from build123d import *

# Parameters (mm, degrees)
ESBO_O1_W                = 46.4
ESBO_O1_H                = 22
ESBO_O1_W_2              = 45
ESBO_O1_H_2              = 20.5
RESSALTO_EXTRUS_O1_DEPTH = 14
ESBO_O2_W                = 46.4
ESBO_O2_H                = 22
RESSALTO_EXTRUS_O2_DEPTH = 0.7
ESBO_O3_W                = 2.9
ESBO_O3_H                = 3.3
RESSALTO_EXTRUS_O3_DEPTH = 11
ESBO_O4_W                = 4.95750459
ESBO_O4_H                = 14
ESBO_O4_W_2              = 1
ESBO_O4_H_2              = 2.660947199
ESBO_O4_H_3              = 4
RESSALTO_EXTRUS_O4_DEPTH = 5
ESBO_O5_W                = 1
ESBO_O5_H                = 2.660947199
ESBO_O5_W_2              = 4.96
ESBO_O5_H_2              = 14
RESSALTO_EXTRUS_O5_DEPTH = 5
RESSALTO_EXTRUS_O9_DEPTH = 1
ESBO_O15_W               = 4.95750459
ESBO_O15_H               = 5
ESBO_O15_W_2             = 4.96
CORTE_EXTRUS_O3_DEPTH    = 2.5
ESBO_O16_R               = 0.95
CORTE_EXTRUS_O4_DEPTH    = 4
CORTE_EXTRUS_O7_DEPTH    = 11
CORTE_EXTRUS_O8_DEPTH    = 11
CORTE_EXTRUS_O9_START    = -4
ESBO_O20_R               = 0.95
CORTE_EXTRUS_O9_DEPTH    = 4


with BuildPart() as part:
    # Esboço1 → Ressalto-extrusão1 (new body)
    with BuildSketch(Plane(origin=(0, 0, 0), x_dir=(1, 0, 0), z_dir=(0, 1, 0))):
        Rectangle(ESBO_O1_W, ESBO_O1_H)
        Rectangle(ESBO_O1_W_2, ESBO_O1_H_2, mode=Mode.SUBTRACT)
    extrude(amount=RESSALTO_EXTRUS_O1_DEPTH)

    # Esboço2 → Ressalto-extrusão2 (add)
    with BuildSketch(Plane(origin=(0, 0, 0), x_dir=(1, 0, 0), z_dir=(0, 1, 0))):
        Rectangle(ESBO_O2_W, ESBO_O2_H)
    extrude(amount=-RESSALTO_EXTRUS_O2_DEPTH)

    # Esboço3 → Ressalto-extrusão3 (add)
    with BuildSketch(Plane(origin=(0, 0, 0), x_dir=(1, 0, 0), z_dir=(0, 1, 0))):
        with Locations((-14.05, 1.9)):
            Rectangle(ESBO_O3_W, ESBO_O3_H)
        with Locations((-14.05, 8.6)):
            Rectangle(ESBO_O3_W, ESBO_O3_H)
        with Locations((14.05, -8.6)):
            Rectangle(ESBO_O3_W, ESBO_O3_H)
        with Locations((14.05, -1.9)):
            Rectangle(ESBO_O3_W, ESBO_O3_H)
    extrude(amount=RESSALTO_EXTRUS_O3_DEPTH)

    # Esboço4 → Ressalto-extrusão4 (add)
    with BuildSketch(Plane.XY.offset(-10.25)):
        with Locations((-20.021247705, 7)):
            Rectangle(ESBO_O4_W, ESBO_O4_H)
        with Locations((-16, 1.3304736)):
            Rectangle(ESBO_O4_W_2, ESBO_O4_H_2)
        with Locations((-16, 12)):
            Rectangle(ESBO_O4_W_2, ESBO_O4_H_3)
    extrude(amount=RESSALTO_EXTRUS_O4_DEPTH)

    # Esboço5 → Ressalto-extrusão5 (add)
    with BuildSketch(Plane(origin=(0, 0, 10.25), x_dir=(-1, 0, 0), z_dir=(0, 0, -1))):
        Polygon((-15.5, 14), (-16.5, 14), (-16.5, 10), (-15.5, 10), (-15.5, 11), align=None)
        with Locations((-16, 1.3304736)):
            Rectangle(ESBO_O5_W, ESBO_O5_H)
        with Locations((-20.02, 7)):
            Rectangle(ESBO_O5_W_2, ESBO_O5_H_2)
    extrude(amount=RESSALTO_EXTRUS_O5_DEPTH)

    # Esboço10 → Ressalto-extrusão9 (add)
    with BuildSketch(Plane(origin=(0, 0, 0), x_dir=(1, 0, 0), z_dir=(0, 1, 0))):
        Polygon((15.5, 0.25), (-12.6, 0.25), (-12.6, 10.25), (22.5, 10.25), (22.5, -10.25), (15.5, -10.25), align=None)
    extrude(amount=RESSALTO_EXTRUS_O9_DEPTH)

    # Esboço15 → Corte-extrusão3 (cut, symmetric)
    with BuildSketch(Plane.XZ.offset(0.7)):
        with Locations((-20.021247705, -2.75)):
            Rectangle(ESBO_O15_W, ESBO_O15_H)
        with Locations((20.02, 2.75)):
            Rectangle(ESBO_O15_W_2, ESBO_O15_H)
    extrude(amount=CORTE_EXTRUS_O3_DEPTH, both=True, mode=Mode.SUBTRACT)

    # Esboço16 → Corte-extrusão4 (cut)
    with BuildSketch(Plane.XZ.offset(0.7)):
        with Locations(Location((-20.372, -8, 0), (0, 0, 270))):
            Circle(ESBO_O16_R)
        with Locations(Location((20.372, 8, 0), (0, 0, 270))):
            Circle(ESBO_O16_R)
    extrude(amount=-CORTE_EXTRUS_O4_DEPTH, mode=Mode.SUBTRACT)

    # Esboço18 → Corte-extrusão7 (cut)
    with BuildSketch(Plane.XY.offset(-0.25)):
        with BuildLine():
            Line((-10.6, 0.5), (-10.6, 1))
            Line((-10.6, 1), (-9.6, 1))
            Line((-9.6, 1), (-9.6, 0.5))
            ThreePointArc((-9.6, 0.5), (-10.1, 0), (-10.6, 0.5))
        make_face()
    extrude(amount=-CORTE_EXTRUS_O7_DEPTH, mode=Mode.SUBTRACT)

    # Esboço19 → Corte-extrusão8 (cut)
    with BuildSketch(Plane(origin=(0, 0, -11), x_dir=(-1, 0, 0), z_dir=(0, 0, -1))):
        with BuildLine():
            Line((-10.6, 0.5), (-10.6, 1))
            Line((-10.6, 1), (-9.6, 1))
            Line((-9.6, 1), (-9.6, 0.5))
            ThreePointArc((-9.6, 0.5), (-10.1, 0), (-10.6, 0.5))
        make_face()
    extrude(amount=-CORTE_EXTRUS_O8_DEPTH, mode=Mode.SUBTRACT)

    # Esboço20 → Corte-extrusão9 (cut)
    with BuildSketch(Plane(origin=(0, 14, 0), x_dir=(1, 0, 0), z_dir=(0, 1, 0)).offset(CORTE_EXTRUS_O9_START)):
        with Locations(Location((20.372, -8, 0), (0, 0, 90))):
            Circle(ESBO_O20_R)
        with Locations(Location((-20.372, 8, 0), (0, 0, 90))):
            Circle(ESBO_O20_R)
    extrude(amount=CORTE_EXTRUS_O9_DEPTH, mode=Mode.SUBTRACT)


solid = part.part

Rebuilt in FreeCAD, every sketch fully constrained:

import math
import FreeCAD as App
import Part
import Sketcher

V = App.Vector
Q = App.Units.Quantity

doc = App.newDocument("Part")
params = doc.addObject("Spreadsheet::Sheet", "Params")
for row, (alias, value) in enumerate([
    ("sketch1_width", "45 mm"),
    ("sketch1_height", "22 mm"),
    ("sketch1_width2", "46.4 mm"),
    ("sketch1_height2", "20.5 mm"),
    ("pad1_length", "14 mm"),
    ("sketch2_height", "22 mm"),
    ("sketch2_width", "46.4 mm"),
    ("pad2_length", "0.7 mm"),
    ("sketch3_width", "2.9 mm"),
    ("sketch3_height", "3.3 mm"),
    ("pad3_length", "11 mm"),
    ("sketch4_width", "1 mm"),
    ("sketch4_height", "14 mm"),
    ("sketch4_height2", "4 mm"),
    ("pad4_length", "5 mm"),
    ("sketch5_width", "1 mm"),
    ("sketch5_height", "4 mm"),
    ("sketch5_height2", "14 mm"),
    ("sketch5_width2", "4.96 mm"),
    ("pad5_length", "5 mm"),
    ("sketch6_width", "7 mm"),
    ("sketch6_height", "10 mm"),
    ("sketch6_width2", "28.1 mm"),
    ("sketch6_height2", "10.5 mm"),
    ("pad6_length", "1 mm"),
    ("sketch7_height", "5 mm"),
    ("sketch7_width", "4.96 mm"),
    ("pocket1_length", "5 mm"),
    ("sketch8_diameter", "1.9 mm"),
    ("pocket2_length", "4 mm"),
    ("sketch9_radius", "0.5 mm"),
    ("sketch9_height", "0.5 mm"),
    ("pocket3_length", "11 mm"),
    ("sketch10_radius", "0.5 mm"),
    ("sketch10_height", "0.5 mm"),
    ("pocket4_length", "11 mm"),
    ("sketch11_diameter", "1.9 mm"),
    ("pocket5_length", "4 mm"),
], start=1):
    params.set(f"A{row}", alias)
    params.set(f"B{row}", "=" + value)
    params.setAlias(f"B{row}", alias)

body = doc.addObject("PartDesign::Body", "Body")

# Sketch on XZ plane
sketch1 = body.newObject("Sketcher::SketchObject", "Sketch")
sketch1.AttachmentSupport = (doc.getObject("XZ_Plane"), [""])
sketch1.MapMode = "FlatFace"
sketch1.addGeometry([
    Part.LineSegment(V(-23, -11, 0), V(-23, 11, 0)),  # 0
    Part.LineSegment(V(-23, 11, 0), V(23, 11, 0)),  # 1
    Part.LineSegment(V(23, 11, 0), V(23, -11, 0)),  # 2
    Part.LineSegment(V(23, -11, 0), V(-23, -11, 0)),  # 3
    Part.LineSegment(V(22, 10, 0), V(-22, 10, 0)),  # 4
    Part.LineSegment(V(-22, 10, 0), V(-22, -10, 0)),  # 5
    Part.LineSegment(V(-22, -10, 0), V(22, -10, 0)),  # 6
    Part.LineSegment(V(22, -10, 0), V(22, 10, 0)),  # 7
], False)
sketch1.addConstraint([
    Sketcher.Constraint("Coincident", 0, 2, 1, 1),
    Sketcher.Constraint("Coincident", 1, 2, 2, 1),
    Sketcher.Constraint("Coincident", 2, 2, 3, 1),
    Sketcher.Constraint("Coincident", 3, 2, 0, 1),
    Sketcher.Constraint("Coincident", 4, 2, 5, 1),
    Sketcher.Constraint("Coincident", 5, 2, 6, 1),
    Sketcher.Constraint("Coincident", 6, 2, 7, 1),
    Sketcher.Constraint("Coincident", 7, 2, 4, 1),
    Sketcher.Constraint("Vertical", 0),
    Sketcher.Constraint("Horizontal", 1),
    Sketcher.Constraint("Vertical", 2),
    Sketcher.Constraint("Horizontal", 3),
    Sketcher.Constraint("Horizontal", 4),
    Sketcher.Constraint("Vertical", 5),
    Sketcher.Constraint("Horizontal", 6),
    Sketcher.Constraint("Vertical", 7),
    Sketcher.Constraint("Symmetric", 0, 2, 2, 2, -1, 1),
    Sketcher.Constraint("Symmetric", 4, 2, 6, 2, -1, 1),
    Sketcher.Constraint("DistanceX", 4, 2, 4, 1, Q("45 mm")),
    Sketcher.Constraint("DistanceY", 0, 1, 0, 2, Q("22 mm")),
    Sketcher.Constraint("DistanceX", 1, 1, 1, 2, Q("46.4 mm")),
    Sketcher.Constraint("DistanceY", 5, 2, 5, 1, Q("20.5 mm")),
])
sketch1.setExpression("Constraints[18]", "Params.sketch1_width")
sketch1.setExpression("Constraints[19]", "Params.sketch1_height")
sketch1.setExpression("Constraints[20]", "Params.sketch1_width2")
sketch1.setExpression("Constraints[21]", "Params.sketch1_height2")
pad1 = body.newObject("PartDesign::Pad", "Pad")
pad1.Profile = sketch1
pad1.setExpression("Length", "Params.pad1_length")
pad1.Reversed = True

# Sketch on XZ plane
sketch2 = body.newObject("Sketcher::SketchObject", "Sketch001")
sketch2.AttachmentSupport = (doc.getObject("XZ_Plane"), [""])
sketch2.MapMode = "FlatFace"
sketch2.addGeometry([
    Part.LineSegment(V(-23, -11, 0), V(-23, 11, 0)),
    Part.LineSegment(V(-23, 11, 0), V(23, 11, 0)),
    Part.LineSegment(V(23, 11, 0), V(23, -11, 0)),
    Part.LineSegment(V(23, -11, 0), V(-23, -11, 0)),
], False)
sketch2.addConstraint([
    Sketcher.Constraint("Coincident", 0, 2, 1, 1),
    Sketcher.Constraint("Coincident", 1, 2, 2, 1),
    Sketcher.Constraint("Coincident", 2, 2, 3, 1),
    Sketcher.Constraint("Coincident", 3, 2, 0, 1),
    Sketcher.Constraint("Vertical", 0),
    Sketcher.Constraint("Horizontal", 1),
    Sketcher.Constraint("Vertical", 2),
    Sketcher.Constraint("Horizontal", 3),
    Sketcher.Constraint("Symmetric", 0, 2, 2, 2, -1, 1),
    Sketcher.Constraint("DistanceY", 0, 1, 0, 2, Q("22 mm")),
    Sketcher.Constraint("DistanceX", 1, 1, 1, 2, Q("46.4 mm")),
])
sketch2.setExpression("Constraints[9]", "Params.sketch2_height")
sketch2.setExpression("Constraints[10]", "Params.sketch2_width")
pad2 = body.newObject("PartDesign::Pad", "Pad001")
pad2.Profile = sketch2
pad2.setExpression("Length", "Params.pad2_length")

# Sketch on XZ plane
sketch3 = body.newObject("Sketcher::SketchObject", "Sketch002")
sketch3.AttachmentSupport = (doc.getObject("XZ_Plane"), [""])
sketch3.MapMode = "FlatFace"
sketch3.addGeometry([
    Part.LineSegment(V(-15.5, -3.5, 0), V(-15.5, -0.2, 0)),  # 0
    Part.LineSegment(V(-15.5, -0.2, 0), V(-12.6, -0.2, 0)),  # 1
    Part.LineSegment(V(-12.6, -0.2, 0), V(-12.6, -3.5, 0)),  # 2
    Part.LineSegment(V(-12.6, -3.5, 0), V(-15.5, -3.5, 0)),  # 3
    Part.LineSegment(V(-15.5, -10.2, 0), V(-15.5, -7, 0)),  # 4
    Part.LineSegment(V(-15.5, -7, 0), V(-12.6, -7, 0)),  # 5
    Part.LineSegment(V(-12.6, -7, 0), V(-12.6, -10.2, 0)),  # 6
    Part.LineSegment(V(-12.6, -10.2, 0), V(-15.5, -10.2, 0)),  # 7
    Part.LineSegment(V(12.6, 7, 0), V(12.6, 10.2, 0)),  # 8
    Part.LineSegment(V(12.6, 10.2, 0), V(15.5, 10.2, 0)),  # 9
    Part.LineSegment(V(15.5, 10.2, 0), V(15.5, 7, 0)),  # 10
    Part.LineSegment(V(15.5, 7, 0), V(12.6, 7, 0)),  # 11
    Part.LineSegment(V(12.6, 0.2, 0), V(12.6, 3.5, 0)),  # 12
    Part.LineSegment(V(12.6, 3.5, 0), V(15.5, 3.5, 0)),  # 13
    Part.LineSegment(V(15.5, 3.5, 0), V(15.5, 0.2, 0)),  # 14
    Part.LineSegment(V(15.5, 0.2, 0), V(12.6, 0.2, 0)),  # 15
], False)
sketch3.addConstraint([
    Sketcher.Constraint("Coincident", 0, 2, 1, 1),
    Sketcher.Constraint("Coincident", 1, 2, 2, 1),
    Sketcher.Constraint("Coincident", 2, 2, 3, 1),
    Sketcher.Constraint("Coincident", 3, 2, 0, 1),
    Sketcher.Constraint("Coincident", 4, 2, 5, 1),
    Sketcher.Constraint("Coincident", 5, 2, 6, 1),
    Sketcher.Constraint("Coincident", 6, 2, 7, 1),
    Sketcher.Constraint("Coincident", 7, 2, 4, 1),
    Sketcher.Constraint("Coincident", 8, 2, 9, 1),
    Sketcher.Constraint("Coincident", 9, 2, 10, 1),
    Sketcher.Constraint("Coincident", 10, 2, 11, 1),
    Sketcher.Constraint("Coincident", 11, 2, 8, 1),
    Sketcher.Constraint("Coincident", 12, 2, 13, 1),
    Sketcher.Constraint("Coincident", 13, 2, 14, 1),
    Sketcher.Constraint("Coincident", 14, 2, 15, 1),
    Sketcher.Constraint("Coincident", 15, 2, 12, 1),
    Sketcher.Constraint("Vertical", 0),
    Sketcher.Constraint("Horizontal", 1),
    Sketcher.Constraint("Vertical", 2),
    Sketcher.Constraint("Horizontal", 3),
    Sketcher.Constraint("Vertical", 4),
    Sketcher.Constraint("Horizontal", 5),
    Sketcher.Constraint("Vertical", 6),
    Sketcher.Constraint("Horizontal", 7),
    Sketcher.Constraint("Vertical", 8),
    Sketcher.Constraint("Horizontal", 9),
    Sketcher.Constraint("Vertical", 10),
    Sketcher.Constraint("Horizontal", 11),
    Sketcher.Constraint("Vertical", 12),
    Sketcher.Constraint("Horizontal", 13),
    Sketcher.Constraint("Vertical", 14),
    Sketcher.Constraint("Horizontal", 15),
    Sketcher.Constraint("Symmetric", 6, 2, 8, 2, -1, 1),
    Sketcher.Constraint("Symmetric", 4, 2, 10, 2, -1, 1),
    Sketcher.Constraint("Symmetric", 2, 2, 12, 2, -1, 1),
    Sketcher.Constraint("Symmetric", 0, 2, 14, 2, -1, 1),
    Sketcher.Constraint("Vertical", 3, 2, 4, 2),
    Sketcher.Constraint("Vertical", 2, 2, 5, 2),
    Sketcher.Constraint("Equal", 2, 4),
    Sketcher.Constraint("DistanceX", 1, 1, 1, 2, Q("2.9 mm")),
    Sketcher.Constraint("DistanceY", 0, 1, 0, 2, Q("3.3 mm")),
    Sketcher.Constraint("DistanceY", 6, 2, 1, 2, Q("10 mm")),
    Sketcher.Constraint("DistanceX", 0, 2, 9, 2, Q("31 mm")),
    Sketcher.Constraint("DistanceY", 1, 2, 8, 2, Q("10.5 mm")),
])
sketch3.setExpression("Constraints[39]", "Params.sketch3_width")
sketch3.setExpression("Constraints[40]", "Params.sketch3_height")
pad3 = body.newObject("PartDesign::Pad", "Pad002")
pad3.Profile = sketch3
pad3.setExpression("Length", "Params.pad3_length")
pad3.Reversed = True

# Sketch on XY plane
sketch4 = body.newObject("Sketcher::SketchObject", "Sketch003")
sketch4.AttachmentSupport = (doc.getObject("XY_Plane"), [""])
sketch4.MapMode = "FlatFace"
sketch4.AttachmentOffset = App.Placement(V(0, 0, -10.25), App.Rotation())
sketch4.addGeometry([
    Part.LineSegment(V(-22.5, 14, 0), V(-22.5, 0, 0)),  # 0
    Part.LineSegment(V(-22.5, 0, 0), V(-17.5, 0, 0)),  # 1
    Part.LineSegment(V(-17.5, 0, 0), V(-17.5, 14, 0)),  # 2
    Part.LineSegment(V(-17.5, 14, 0), V(-22.5, 14, 0)),  # 3
    Part.LineSegment(V(-16.5, 2.7, 0), V(-16.5, 0, 0)),  # 4
    Part.LineSegment(V(-16.5, 0, 0), V(-15.5, 0, 0)),  # 5
    Part.LineSegment(V(-15.5, 0, 0), V(-15.5, 2.7, 0)),  # 6
    Part.LineSegment(V(-15.5, 2.7, 0), V(-16.5, 2.7, 0)),  # 7
    Part.LineSegment(V(-16.5, 14, 0), V(-16.5, 10, 0)),  # 8
    Part.LineSegment(V(-16.5, 10, 0), V(-15.5, 10, 0)),  # 9
    Part.LineSegment(V(-15.5, 10, 0), V(-15.5, 14, 0)),  # 10
    Part.LineSegment(V(-15.5, 14, 0), V(-16.5, 14, 0)),  # 11
], False)
sketch4.addConstraint([
    Sketcher.Constraint("Coincident", 0, 2, 1, 1),
    Sketcher.Constraint("Coincident", 1, 2, 2, 1),
    Sketcher.Constraint("Coincident", 2, 2, 3, 1),
    Sketcher.Constraint("Coincident", 3, 2, 0, 1),
    Sketcher.Constraint("Coincident", 4, 2, 5, 1),
    Sketcher.Constraint("Coincident", 5, 2, 6, 1),
    Sketcher.Constraint("Coincident", 6, 2, 7, 1),
    Sketcher.Constraint("Coincident", 7, 2, 4, 1),
    Sketcher.Constraint("Coincident", 8, 2, 9, 1),
    Sketcher.Constraint("Coincident", 9, 2, 10, 1),
    Sketcher.Constraint("Coincident", 10, 2, 11, 1),
    Sketcher.Constraint("Coincident", 11, 2, 8, 1),
    Sketcher.Constraint("Vertical", 0),
    Sketcher.Constraint("Horizontal", 1),
    Sketcher.Constraint("Vertical", 2),
    Sketcher.Constraint("Horizontal", 3),
    Sketcher.Constraint("Vertical", 4),
    Sketcher.Constraint("Horizontal", 5),
    Sketcher.Constraint("Vertical", 6),
    Sketcher.Constraint("Horizontal", 7),
    Sketcher.Constraint("Vertical", 8),
    Sketcher.Constraint("Horizontal", 9),
    Sketcher.Constraint("Vertical", 10),
    Sketcher.Constraint("Horizontal", 11),
    Sketcher.Constraint("PointOnObject", 0, 2, -1),
    Sketcher.Constraint("PointOnObject", 4, 2, -1),
    Sketcher.Constraint("Horizontal", 3, 2, 10, 2),
    Sketcher.Constraint("Vertical", 7, 2, 8, 2),
    Sketcher.Constraint("Vertical", 6, 2, 9, 2),
    Sketcher.Constraint("DistanceX", 5, 1, 5, 2, Q("1 mm")),
    Sketcher.Constraint("DistanceY", 0, 2, 0, 1, Q("14 mm")),
    Sketcher.Constraint("DistanceY", 8, 2, 8, 1, Q("4 mm")),
    Sketcher.Constraint("DistanceX", 0, 2, 4, 2, Q("6 mm")),
    Sketcher.Constraint("DistanceX", 0, 2, -1, 1, Q("22.5 mm")),
    Sketcher.Constraint("DistanceX", 1, 1, 1, 2, Q("4.957505 mm")),
    Sketcher.Constraint("DistanceY", 4, 2, 4, 1, Q("2.660947 mm")),
])
sketch4.setExpression("Constraints[29]", "Params.sketch4_width")
sketch4.setExpression("Constraints[30]", "Params.sketch4_height")
sketch4.setExpression("Constraints[31]", "Params.sketch4_height2")
pad4 = body.newObject("PartDesign::Pad", "Pad003")
pad4.Profile = sketch4
pad4.setExpression("Length", "Params.pad4_length")

# Sketch on XY plane
sketch5 = body.newObject("Sketcher::SketchObject", "Sketch004")
sketch5.AttachmentSupport = (doc.getObject("XY_Plane"), [""])
sketch5.MapMode = "FlatFace"
sketch5.AttachmentOffset = App.Placement(V(0, 0, 10.25), App.Rotation())
sketch5.addGeometry([
    Part.LineSegment(V(15.5, 14, 0), V(16.5, 14, 0)),  # 0
    Part.LineSegment(V(16.5, 14, 0), V(16.5, 10, 0)),  # 1
    Part.LineSegment(V(16.5, 10, 0), V(15.5, 10, 0)),  # 2
    Part.LineSegment(V(15.5, 10, 0), V(15.5, 14, 0)),  # 3
    Part.LineSegment(V(16.5, 2.7, 0), V(16.5, 0, 0)),  # 4
    Part.LineSegment(V(16.5, 0, 0), V(15.5, 0, 0)),  # 5
    Part.LineSegment(V(15.5, 0, 0), V(15.5, 2.7, 0)),  # 6
    Part.LineSegment(V(15.5, 2.7, 0), V(16.5, 2.7, 0)),  # 7
    Part.LineSegment(V(22.5, 14, 0), V(22.5, 0, 0)),  # 8
    Part.LineSegment(V(22.5, 0, 0), V(17.5, 0, 0)),  # 9
    Part.LineSegment(V(17.5, 0, 0), V(17.5, 14, 0)),  # 10
    Part.LineSegment(V(17.5, 14, 0), V(22.5, 14, 0)),  # 11
], False)
sketch5.addConstraint([
    Sketcher.Constraint("Coincident", 0, 2, 1, 1),
    Sketcher.Constraint("Coincident", 1, 2, 2, 1),
    Sketcher.Constraint("Coincident", 2, 2, 3, 1),
    Sketcher.Constraint("Coincident", 3, 2, 0, 1),
    Sketcher.Constraint("Coincident", 4, 2, 5, 1),
    Sketcher.Constraint("Coincident", 5, 2, 6, 1),
    Sketcher.Constraint("Coincident", 6, 2, 7, 1),
    Sketcher.Constraint("Coincident", 7, 2, 4, 1),
    Sketcher.Constraint("Coincident", 8, 2, 9, 1),
    Sketcher.Constraint("Coincident", 9, 2, 10, 1),
    Sketcher.Constraint("Coincident", 10, 2, 11, 1),
    Sketcher.Constraint("Coincident", 11, 2, 8, 1),
    Sketcher.Constraint("Horizontal", 0),
    Sketcher.Constraint("Vertical", 1),
    Sketcher.Constraint("Horizontal", 2),
    Sketcher.Constraint("Vertical", 3),
    Sketcher.Constraint("Vertical", 4),
    Sketcher.Constraint("Horizontal", 5),
    Sketcher.Constraint("Vertical", 6),
    Sketcher.Constraint("Horizontal", 7),
    Sketcher.Constraint("Vertical", 8),
    Sketcher.Constraint("Horizontal", 9),
    Sketcher.Constraint("Vertical", 10),
    Sketcher.Constraint("Horizontal", 11),
    Sketcher.Constraint("PointOnObject", 4, 2, -1),
    Sketcher.Constraint("PointOnObject", 8, 2, -1),
    Sketcher.Constraint("Horizontal", 3, 2, 10, 2),
    Sketcher.Constraint("Vertical", 1, 2, 4, 2),
    Sketcher.Constraint("Vertical", 3, 2, 5, 2),
    Sketcher.Constraint("DistanceX", 0, 1, 0, 2, Q("1 mm")),
    Sketcher.Constraint("DistanceY", 1, 2, 1, 1, Q("4 mm")),
    Sketcher.Constraint("DistanceY", 8, 2, 8, 1, Q("14 mm")),
    Sketcher.Constraint("DistanceX", 4, 2, 8, 2, Q("6 mm")),
    Sketcher.Constraint("DistanceX", 9, 2, 9, 1, Q("4.96 mm")),
    Sketcher.Constraint("DistanceX", -1, 1, 0, 2, Q("16.5 mm")),
    Sketcher.Constraint("DistanceY", 4, 2, 4, 1, Q("2.660947 mm")),
])
sketch5.setExpression("Constraints[29]", "Params.sketch5_width")
sketch5.setExpression("Constraints[30]", "Params.sketch5_height")
sketch5.setExpression("Constraints[31]", "Params.sketch5_height2")
sketch5.setExpression("Constraints[33]", "Params.sketch5_width2")
pad5 = body.newObject("PartDesign::Pad", "Pad004")
pad5.Profile = sketch5
pad5.setExpression("Length", "Params.pad5_length")
pad5.Reversed = True

# Sketch on XZ plane
sketch6 = body.newObject("Sketcher::SketchObject", "Sketch005")
sketch6.AttachmentSupport = (doc.getObject("XZ_Plane"), [""])
sketch6.MapMode = "FlatFace"
sketch6.addGeometry([
    Part.LineSegment(V(-13, 0, 0), V(16, 0, 0)),  # 0
    Part.LineSegment(V(16, 0, 0), V(16, 10, 0)),  # 1
    Part.LineSegment(V(16, 10, 0), V(22, 10, 0)),  # 2
    Part.LineSegment(V(22, 10, 0), V(22, -10, 0)),  # 3
    Part.LineSegment(V(22, -10, 0), V(-13, -10, 0)),  # 4
    Part.LineSegment(V(-13, -10, 0), V(-13, 0, 0)),  # 5
], False)
sketch6.addConstraint([
    Sketcher.Constraint("Coincident", 0, 2, 1, 1),
    Sketcher.Constraint("Coincident", 1, 2, 2, 1),
    Sketcher.Constraint("Coincident", 2, 2, 3, 1),
    Sketcher.Constraint("Coincident", 3, 2, 4, 1),
    Sketcher.Constraint("Coincident", 4, 2, 5, 1),
    Sketcher.Constraint("Coincident", 5, 2, 0, 1),
    Sketcher.Constraint("Horizontal", 0),
    Sketcher.Constraint("Vertical", 1),
    Sketcher.Constraint("Horizontal", 2),
    Sketcher.Constraint("Vertical", 3),
    Sketcher.Constraint("Horizontal", 4),
    Sketcher.Constraint("Vertical", 5),
    Sketcher.Constraint("DistanceX", 2, 1, 2, 2, Q("7 mm")),
    Sketcher.Constraint("DistanceY", 5, 1, 5, 2, Q("10 mm")),
    Sketcher.Constraint("DistanceX", 0, 1, 0, 2, Q("28.1 mm")),
    Sketcher.Constraint("DistanceY", 1, 1, 1, 2, Q("10.5 mm")),
    Sketcher.Constraint("DistanceX", -1, 1, 0, 2, Q("15.5 mm")),
    Sketcher.Constraint("DistanceY", 0, 2, -1, 1, Q("0.25 mm")),
])
sketch6.setExpression("Constraints[12]", "Params.sketch6_width")
sketch6.setExpression("Constraints[13]", "Params.sketch6_height")
sketch6.setExpression("Constraints[14]", "Params.sketch6_width2")
sketch6.setExpression("Constraints[15]", "Params.sketch6_height2")
pad6 = body.newObject("PartDesign::Pad", "Pad005")
pad6.Profile = sketch6
pad6.setExpression("Length", "Params.pad6_length")
pad6.Reversed = True

# Sketch on XZ plane
sketch7 = body.newObject("Sketcher::SketchObject", "Sketch006")
sketch7.AttachmentSupport = (doc.getObject("XZ_Plane"), [""])
sketch7.MapMode = "FlatFace"
sketch7.AttachmentOffset = App.Placement(V(0, 0, 0.7), App.Rotation())
sketch7.addGeometry([
    Part.LineSegment(V(-22.5, -0.2, 0), V(-22.5, -5.2, 0)),  # 0
    Part.LineSegment(V(-22.5, -5.2, 0), V(-17.5, -5.2, 0)),  # 1
    Part.LineSegment(V(-17.5, -5.2, 0), V(-17.5, -0.2, 0)),  # 2
    Part.LineSegment(V(-17.5, -0.2, 0), V(-22.5, -0.2, 0)),  # 3
    Part.LineSegment(V(17.5, 5.2, 0), V(17.5, 0.2, 0)),  # 4
    Part.LineSegment(V(17.5, 0.2, 0), V(22.5, 0.2, 0)),  # 5
    Part.LineSegment(V(22.5, 0.2, 0), V(22.5, 5.2, 0)),  # 6
    Part.LineSegment(V(22.5, 5.2, 0), V(17.5, 5.2, 0)),  # 7
], False)
sketch7.addConstraint([
    Sketcher.Constraint("Coincident", 0, 2, 1, 1),
    Sketcher.Constraint("Coincident", 1, 2, 2, 1),
    Sketcher.Constraint("Coincident", 2, 2, 3, 1),
    Sketcher.Constraint("Coincident", 3, 2, 0, 1),
    Sketcher.Constraint("Coincident", 4, 2, 5, 1),
    Sketcher.Constraint("Coincident", 5, 2, 6, 1),
    Sketcher.Constraint("Coincident", 6, 2, 7, 1),
    Sketcher.Constraint("Coincident", 7, 2, 4, 1),
    Sketcher.Constraint("Vertical", 0),
    Sketcher.Constraint("Horizontal", 1),
    Sketcher.Constraint("Vertical", 2),
    Sketcher.Constraint("Horizontal", 3),
    Sketcher.Constraint("Vertical", 4),
    Sketcher.Constraint("Horizontal", 5),
    Sketcher.Constraint("Vertical", 6),
    Sketcher.Constraint("Horizontal", 7),
    Sketcher.Constraint("Symmetric", 3, 2, 5, 2, -1, 1),
    Sketcher.Constraint("Equal", 2, 4),
    Sketcher.Constraint("DistanceY", 0, 2, 0, 1, Q("5 mm")),
    Sketcher.Constraint("DistanceX", 3, 2, 5, 2, Q("45 mm")),
    Sketcher.Constraint("DistanceX", 5, 1, 5, 2, Q("4.96 mm")),
    Sketcher.Constraint("DistanceY", 2, 2, 4, 2, Q("0.5 mm")),
    Sketcher.Constraint("DistanceX", 1, 1, 1, 2, Q("4.957505 mm")),
])
sketch7.setExpression("Constraints[18]", "Params.sketch7_height")
sketch7.setExpression("Constraints[20]", "Params.sketch7_width")
pocket1 = body.newObject("PartDesign::Pocket", "Pocket")
pocket1.Profile = sketch7
pocket1.setExpression("Length", "Params.pocket1_length")
pocket1.Midplane = True

# Sketch on XZ plane
sketch8 = body.newObject("Sketcher::SketchObject", "Sketch007")
sketch8.AttachmentSupport = (doc.getObject("XZ_Plane"), [""])
sketch8.MapMode = "FlatFace"
sketch8.AttachmentOffset = App.Placement(V(0, 0, 0.7), App.Rotation())
sketch8.addGeometry([
    Part.Circle(V(-20.4, -8, 0), V(0, 0, 1), 0.9),
    Part.Circle(V(20.4, 8, 0), V(0, 0, 1), 0.9),
], False)
sketch8.addConstraint([
    Sketcher.Constraint("Equal", 0, 1),
    Sketcher.Constraint("Symmetric", 0, 3, 1, 3, -1, 1),
    Sketcher.Constraint("Diameter", 0, Q("1.9 mm")),
    Sketcher.Constraint("DistanceY", 0, 3, -1, 1, Q("8 mm")),
    Sketcher.Constraint("DistanceX", 0, 3, -1, 1, Q("20.372 mm")),
])
sketch8.setExpression("Constraints[2]", "Params.sketch8_diameter")
pocket2 = body.newObject("PartDesign::Pocket", "Pocket001")
pocket2.Profile = sketch8
pocket2.setExpression("Length", "Params.pocket2_length")

# Sketch on XY plane
sketch9 = body.newObject("Sketcher::SketchObject", "Sketch008")
sketch9.AttachmentSupport = (doc.getObject("XY_Plane"), [""])
sketch9.MapMode = "FlatFace"
sketch9.AttachmentOffset = App.Placement(V(0, 0, -0.25), App.Rotation())
sketch9.addGeometry([
    Part.LineSegment(V(-10.6, 1, 0), V(-10.6, 0.5, 0)),
    Part.ArcOfCircle(Part.Circle(V(-10.1, 0.5, 0), V(0, 0, 1), 0.5), math.radians(180), math.radians(360)),
    Part.LineSegment(V(-9.6, 0.5, 0), V(-9.6, 1, 0)),
    Part.LineSegment(V(-9.6, 1, 0), V(-10.6, 1, 0)),
], False)
sketch9.addConstraint([
    Sketcher.Constraint("Tangent", 0, 2, 1, 1),
    Sketcher.Constraint("Tangent", 1, 2, 2, 1),
    Sketcher.Constraint("Coincident", 2, 2, 3, 1),
    Sketcher.Constraint("Coincident", 3, 2, 0, 1),
    Sketcher.Constraint("Vertical", 0),
    Sketcher.Constraint("Vertical", 2),
    Sketcher.Constraint("Horizontal", 3),
    Sketcher.Constraint("Radius", 1, Q("0.5 mm")),
    Sketcher.Constraint("DistanceY", 0, 2, 0, 1, Q("0.5 mm")),
    Sketcher.Constraint("DistanceY", -1, 1, 2, 2, Q("1 mm")),
    Sketcher.Constraint("DistanceX", 1, 3, -1, 1, Q("10.1 mm")),
])
sketch9.setExpression("Constraints[7]", "Params.sketch9_radius")
sketch9.setExpression("Constraints[8]", "Params.sketch9_height")
pocket3 = body.newObject("PartDesign::Pocket", "Pocket002")
pocket3.Profile = sketch9
pocket3.setExpression("Length", "Params.pocket3_length")

# Sketch on XY plane
sketch10 = body.newObject("Sketcher::SketchObject", "Sketch009")
sketch10.AttachmentSupport = (doc.getObject("XY_Plane"), [""])
sketch10.MapMode = "FlatFace"
sketch10.AttachmentOffset = App.Placement(V(0, 0, -11), App.Rotation())
sketch10.addGeometry([
    Part.LineSegment(V(10.6, 1, 0), V(10.6, 0.5, 0)),
    Part.ArcOfCircle(Part.Circle(V(10.1, 0.5, 0), V(0, 0, 1), 0.5), math.radians(180), math.radians(360)),
    Part.LineSegment(V(9.6, 0.5, 0), V(9.6, 1, 0)),
    Part.LineSegment(V(9.6, 1, 0), V(10.6, 1, 0)),
], False)
sketch10.addConstraint([
    Sketcher.Constraint("Tangent", 0, 2, 1, 2),
    Sketcher.Constraint("Tangent", 1, 1, 2, 1),
    Sketcher.Constraint("Coincident", 2, 2, 3, 1),
    Sketcher.Constraint("Coincident", 3, 2, 0, 1),
    Sketcher.Constraint("Vertical", 0),
    Sketcher.Constraint("Vertical", 2),
    Sketcher.Constraint("Horizontal", 3),
    Sketcher.Constraint("Radius", 1, Q("0.5 mm")),
    Sketcher.Constraint("DistanceY", 0, 2, 0, 1, Q("0.5 mm")),
    Sketcher.Constraint("DistanceY", -1, 1, 2, 2, Q("1 mm")),
    Sketcher.Constraint("DistanceX", -1, 1, 1, 3, Q("10.1 mm")),
])
sketch10.setExpression("Constraints[7]", "Params.sketch10_radius")
sketch10.setExpression("Constraints[8]", "Params.sketch10_height")
pocket4 = body.newObject("PartDesign::Pocket", "Pocket003")
pocket4.Profile = sketch10
pocket4.setExpression("Length", "Params.pocket4_length")
pocket4.Reversed = True

# Sketch on XZ plane
sketch11 = body.newObject("Sketcher::SketchObject", "Sketch010")
sketch11.AttachmentSupport = (doc.getObject("XZ_Plane"), [""])
sketch11.MapMode = "FlatFace"
sketch11.AttachmentOffset = App.Placement(V(0, 0, -10), App.Rotation())
sketch11.addGeometry([
    Part.Circle(V(20.4, 8, 0), V(0, 0, 1), 0.9),
    Part.Circle(V(-20.4, -8, 0), V(0, 0, 1), 0.9),
], False)
sketch11.addConstraint([
    Sketcher.Constraint("Equal", 0, 1),
    Sketcher.Constraint("Symmetric", 0, 3, 1, 3, -1, 1),
    Sketcher.Constraint("Diameter", 0, Q("1.9 mm")),
    Sketcher.Constraint("DistanceY", -1, 1, 0, 3, Q("8 mm")),
    Sketcher.Constraint("DistanceX", -1, 1, 0, 3, Q("20.372 mm")),
])
sketch11.setExpression("Constraints[2]", "Params.sketch11_diameter")
pocket5 = body.newObject("PartDesign::Pocket", "Pocket004")
pocket5.Profile = sketch11
pocket5.setExpression("Length", "Params.pocket5_length")

doc.recompute()
